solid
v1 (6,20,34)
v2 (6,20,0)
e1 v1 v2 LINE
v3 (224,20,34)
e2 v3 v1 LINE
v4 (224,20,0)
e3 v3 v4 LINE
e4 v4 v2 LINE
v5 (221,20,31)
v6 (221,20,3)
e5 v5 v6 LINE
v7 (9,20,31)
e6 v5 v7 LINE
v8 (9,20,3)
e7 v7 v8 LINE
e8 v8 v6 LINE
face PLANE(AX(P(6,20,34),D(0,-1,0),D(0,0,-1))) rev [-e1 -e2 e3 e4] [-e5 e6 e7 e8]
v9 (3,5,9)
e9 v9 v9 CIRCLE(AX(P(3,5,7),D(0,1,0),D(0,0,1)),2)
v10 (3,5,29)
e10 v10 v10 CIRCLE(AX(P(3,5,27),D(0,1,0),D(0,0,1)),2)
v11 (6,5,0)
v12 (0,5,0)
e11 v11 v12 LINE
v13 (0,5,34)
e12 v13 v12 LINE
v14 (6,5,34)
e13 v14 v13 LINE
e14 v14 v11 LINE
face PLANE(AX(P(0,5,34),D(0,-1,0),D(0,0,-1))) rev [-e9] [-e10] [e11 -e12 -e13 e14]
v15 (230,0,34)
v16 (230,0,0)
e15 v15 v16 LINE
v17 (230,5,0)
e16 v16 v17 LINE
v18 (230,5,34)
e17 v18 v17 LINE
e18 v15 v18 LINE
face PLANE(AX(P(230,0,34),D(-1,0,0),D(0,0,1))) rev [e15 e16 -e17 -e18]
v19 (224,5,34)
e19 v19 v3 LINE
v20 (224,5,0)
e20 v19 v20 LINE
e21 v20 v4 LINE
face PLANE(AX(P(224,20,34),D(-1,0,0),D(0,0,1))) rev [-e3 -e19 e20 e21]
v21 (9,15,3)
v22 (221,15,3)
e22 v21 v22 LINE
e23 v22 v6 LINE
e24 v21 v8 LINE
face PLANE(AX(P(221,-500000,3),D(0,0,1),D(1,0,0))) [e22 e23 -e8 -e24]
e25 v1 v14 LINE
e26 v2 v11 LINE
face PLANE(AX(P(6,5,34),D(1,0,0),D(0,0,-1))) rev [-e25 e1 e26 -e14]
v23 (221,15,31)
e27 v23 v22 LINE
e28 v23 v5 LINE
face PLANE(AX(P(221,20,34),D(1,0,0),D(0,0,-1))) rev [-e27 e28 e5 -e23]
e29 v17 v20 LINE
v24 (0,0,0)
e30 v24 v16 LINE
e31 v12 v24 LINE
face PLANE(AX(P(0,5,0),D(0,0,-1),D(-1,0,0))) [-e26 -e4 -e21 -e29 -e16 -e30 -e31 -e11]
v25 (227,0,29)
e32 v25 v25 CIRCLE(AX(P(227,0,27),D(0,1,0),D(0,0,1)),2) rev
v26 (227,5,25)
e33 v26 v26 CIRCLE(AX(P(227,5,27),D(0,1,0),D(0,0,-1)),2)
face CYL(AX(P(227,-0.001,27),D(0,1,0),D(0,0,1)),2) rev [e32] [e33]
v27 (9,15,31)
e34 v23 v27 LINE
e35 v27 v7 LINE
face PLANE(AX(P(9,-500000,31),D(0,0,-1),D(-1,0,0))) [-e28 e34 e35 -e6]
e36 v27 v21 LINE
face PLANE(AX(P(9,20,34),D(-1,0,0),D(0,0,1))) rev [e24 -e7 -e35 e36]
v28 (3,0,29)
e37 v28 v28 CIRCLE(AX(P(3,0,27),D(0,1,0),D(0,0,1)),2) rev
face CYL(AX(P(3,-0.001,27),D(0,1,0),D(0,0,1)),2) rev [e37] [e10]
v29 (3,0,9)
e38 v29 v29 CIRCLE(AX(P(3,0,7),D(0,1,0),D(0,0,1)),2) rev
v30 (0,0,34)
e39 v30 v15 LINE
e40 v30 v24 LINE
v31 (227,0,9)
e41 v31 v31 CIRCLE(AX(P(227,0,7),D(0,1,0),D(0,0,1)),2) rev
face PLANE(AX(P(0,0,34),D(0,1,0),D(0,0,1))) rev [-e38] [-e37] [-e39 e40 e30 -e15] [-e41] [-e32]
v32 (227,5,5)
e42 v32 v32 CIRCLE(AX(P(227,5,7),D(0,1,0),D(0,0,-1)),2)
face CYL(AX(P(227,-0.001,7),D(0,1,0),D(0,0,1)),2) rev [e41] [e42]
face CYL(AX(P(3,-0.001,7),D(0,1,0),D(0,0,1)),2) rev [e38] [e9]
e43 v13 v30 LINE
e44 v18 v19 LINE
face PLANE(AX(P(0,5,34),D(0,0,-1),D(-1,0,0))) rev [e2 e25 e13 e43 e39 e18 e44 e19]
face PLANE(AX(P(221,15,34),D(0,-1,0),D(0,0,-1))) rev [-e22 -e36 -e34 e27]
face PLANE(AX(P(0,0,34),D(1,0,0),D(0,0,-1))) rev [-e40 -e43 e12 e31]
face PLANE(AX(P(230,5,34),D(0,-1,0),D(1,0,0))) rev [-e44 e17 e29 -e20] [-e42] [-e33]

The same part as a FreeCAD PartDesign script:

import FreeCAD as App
import Part
import Sketcher

V = App.Vector

doc = App.newDocument("Part")
body = doc.addObject("PartDesign::Body", "Body")

# Sketch on XY plane
sketch1 = body.newObject("Sketcher::SketchObject", "Sketch")
sketch1.AttachmentSupport = (doc.getObject("XY_Plane"), [""])
sketch1.MapMode = "FlatFace"
sketch1.addGeometry(Part.LineSegment(V(0, 0, 0), V(230, 0, 0)), False)
sketch1.addGeometry(Part.LineSegment(V(230, 0, 0), V(230, 5, 0)), False)
sketch1.addGeometry(Part.LineSegment(V(230, 5, 0), V(224, 5, 0)), False)
sketch1.addGeometry(Part.LineSegment(V(224, 5, 0), V(224, 20, 0)), False)
sketch1.addGeometry(Part.LineSegment(V(224, 20, 0), V(221, 20, 0)), False)
sketch1.addGeometry(Part.LineSegment(V(221, 20, 0), V(221, 15, 0)), False)
sketch1.addGeometry(Part.LineSegment(V(221, 15, 0), V(9, 15, 0)), False)
sketch1.addGeometry(Part.LineSegment(V(9, 15, 0), V(9, 20, 0)), False)
sketch1.addGeometry(Part.LineSegment(V(9, 20, 0), V(6, 20, 0)), False)
sketch1.addGeometry(Part.LineSegment(V(6, 20, 0), V(6, 5, 0)), False)
sketch1.addGeometry(Part.LineSegment(V(6, 5, 0), V(0, 5, 0)), False)
sketch1.addGeometry(Part.LineSegment(V(0, 5, 0), V(0, 0, 0)), False)
sketch1.addConstraint(Sketcher.Constraint("Coincident", 0, 2, 1, 1))
sketch1.addConstraint(Sketcher.Constraint("Coincident", 1, 2, 2, 1))
sketch1.addConstraint(Sketcher.Constraint("Coincident", 2, 2, 3, 1))
sketch1.addConstraint(Sketcher.Constraint("Coincident", 3, 2, 4, 1))
sketch1.addConstraint(Sketcher.Constraint("Coincident", 4, 2, 5, 1))
sketch1.addConstraint(Sketcher.Constraint("Coincident", 5, 2, 6, 1))
sketch1.addConstraint(Sketcher.Constraint("Coincident", 6, 2, 7, 1))
sketch1.addConstraint(Sketcher.Constraint("Coincident", 7, 2, 8, 1))
sketch1.addConstraint(Sketcher.Constraint("Coincident", 8, 2, 9, 1))
sketch1.addConstraint(Sketcher.Constraint("Coincident", 9, 2, 10, 1))
sketch1.addConstraint(Sketcher.Constraint("Coincident", 10, 2, 11, 1))
sketch1.addConstraint(Sketcher.Constraint("Coincident", 11, 2, 0, 1))
sketch1.addConstraint(Sketcher.Constraint("Horizontal", 0))
sketch1.addConstraint(Sketcher.Constraint("Vertical", 1))
sketch1.addConstraint(Sketcher.Constraint("Horizontal", 2))
sketch1.addConstraint(Sketcher.Constraint("Vertical", 3))
sketch1.addConstraint(Sketcher.Constraint("Horizontal", 4))
sketch1.addConstraint(Sketcher.Constraint("Vertical", 5))
sketch1.addConstraint(Sketcher.Constraint("Horizontal", 6))
sketch1.addConstraint(Sketcher.Constraint("Vertical", 7))
sketch1.addConstraint(Sketcher.Constraint("Horizontal", 8))
sketch1.addConstraint(Sketcher.Constraint("Vertical", 9))
sketch1.addConstraint(Sketcher.Constraint("Horizontal", 10))
sketch1.addConstraint(Sketcher.Constraint("Vertical", 11))
sketch1.addConstraint(Sketcher.Constraint("Coincident", 11, 2, -1, 1))
sketch1.addConstraint(Sketcher.Constraint("Horizontal", 4, 2, 7, 2))
sketch1.addConstraint(Sketcher.Constraint("Horizontal", 2, 2, 9, 2))
sketch1.addConstraint(Sketcher.Constraint("Equal", 4, 8))
sketch1.addConstraint(Sketcher.Constraint("Equal", 2, 10))
sketch1.addConstraint(Sketcher.Constraint("Equal", 1, 5))
sketch1.addConstraint(Sketcher.Constraint("DistanceX", 0, 1, 0, 2, 230.0))
sketch1.addConstraint(Sketcher.Constraint("DistanceX", 2, 2, 2, 1, 6.0))
sketch1.addConstraint(Sketcher.Constraint("DistanceX", 4, 2, 4, 1, 3.0))
sketch1.addConstraint(Sketcher.Constraint("DistanceY", 1, 1, 1, 2, 5.0))
sketch1.addConstraint(Sketcher.Constraint("DistanceY", 3, 1, 3, 2, 15.0))
pad1 = body.newObject("PartDesign::Pad", "Pad")
pad1.Profile = sketch1
pad1.Length = 34

# Sketch on XZ plane
sketch2 = body.newObject("Sketcher::SketchObject", "Sketch001")
sketch2.AttachmentSupport = (doc.getObject("XZ_Plane"), [""])
sketch2.MapMode = "FlatFace"
sketch2.AttachmentOffset = App.Placement(V(0, 0, -20), App.Rotation())
sketch2.addGeometry(Part.LineSegment(V(9, 0, 0), V(9, 3, 0)), False)
sketch2.addGeometry(Part.LineSegment(V(9, 3, 0), V(221, 3, 0)), False)
sketch2.addGeometry(Part.LineSegment(V(221, 3, 0), V(221, 0, 0)), False)
sketch2.addGeometry(Part.LineSegment(V(221, 0, 0), V(9, 0, 0)), False)
sketch2.addConstraint(Sketcher.Constraint("Coincident", 0, 2, 1, 1))
sketch2.addConstraint(Sketcher.Constraint("Coincident", 1, 2, 2, 1))
sketch2.addConstraint(Sketcher.Constraint("Coincident", 2, 2, 3, 1))
sketch2.addConstraint(Sketcher.Constraint("Coincident", 3, 2, 0, 1))
sketch2.addConstraint(Sketcher.Constraint("Vertical", 0))
sketch2.addConstraint(Sketcher.Constraint("Horizontal", 1))
sketch2.addConstraint(Sketcher.Constraint("Vertical", 2))
sketch2.addConstraint(Sketcher.Constraint("Horizontal", 3))
sketch2.addConstraint(Sketcher.Constraint("PointOnObject", 2, 2, -1))
sketch2.addConstraint(Sketcher.Constraint("DistanceX", 1, 1, 1, 2, 212.0))
sketch2.addConstraint(Sketcher.Constraint("DistanceY", 0, 1, 0, 2, 3.0))
sketch2.addConstraint(Sketcher.Constraint("DistanceX", -1, 1, 0, 2, 9.0))
pad2 = body.newObject("PartDesign::Pad", "Pad001")
pad2.Profile = sketch2
pad2.Type = "UpToFirst"

# Sketch on XZ plane
sketch3 = body.newObject("Sketcher::SketchObject", "Sketch002")
sketch3.AttachmentSupport = (doc.getObject("XZ_Plane"), [""])
sketch3.MapMode = "FlatFace"
sketch3.AttachmentOffset = App.Placement(V(0, 0, -20), App.Rotation())
sketch3.addGeometry(Part.LineSegment(V(9, 31, 0), V(9, 34, 0)), False)
sketch3.addGeometry(Part.LineSegment(V(9, 34, 0), V(221, 34, 0)), False)
sketch3.addGeometry(Part.LineSegment(V(221, 34, 0), V(221, 31, 0)), False)
sketch3.addGeometry(Part.LineSegment(V(221, 31, 0), V(9, 31, 0)), False)
sketch3.addConstraint(Sketcher.Constraint("Coincident", 0, 2, 1, 1))
sketch3.addConstraint(Sketcher.Constraint("Coincident", 1, 2, 2, 1))
sketch3.addConstraint(Sketcher.Constraint("Coincident", 2, 2, 3, 1))
sketch3.addConstraint(Sketcher.Constraint("Coincident", 3, 2, 0, 1))
sketch3.addConstraint(Sketcher.Constraint("Vertical", 0))
sketch3.addConstraint(Sketcher.Constraint("Horizontal", 1))
sketch3.addConstraint(Sketcher.Constraint("Vertical", 2))
sketch3.addConstraint(Sketcher.Constraint("Horizontal", 3))
sketch3.addConstraint(Sketcher.Constraint("DistanceX", 1, 1, 1, 2, 212.0))
sketch3.addConstraint(Sketcher.Constraint("DistanceY", 0, 1, 0, 2, 3.0))
sketch3.addConstraint(Sketcher.Constraint("DistanceX", -1, 1, 0, 2, 9.0))
sketch3.addConstraint(Sketcher.Constraint("DistanceY", -1, 1, 0, 2, 34.0))
pad3 = body.newObject("PartDesign::Pad", "Pad002")
pad3.Profile = sketch3
pad3.Type = "UpToFirst"

# Sketch on XZ plane
sketch4 = body.newObject("Sketcher::SketchObject", "Sketch003")
sketch4.AttachmentSupport = (doc.getObject("XZ_Plane"), [""])
sketch4.MapMode = "FlatFace"
sketch4.AttachmentOffset = App.Placement(V(0, 0, -5), App.Rotation())
sketch4.addGeometry(Part.Circle(V(3, 7, 0), V(0, 0, 1), 2), False)
sketch4.addConstraint(Sketcher.Constraint("Diameter", 0, 4.0))
sketch4.addConstraint(Sketcher.Constraint("DistanceX", -1, 1, 0, 3, 3.0))
sketch4.addConstraint(Sketcher.Constraint("DistanceY", -1, 1, 0, 3, 7.0))
pocket1 = body.newObject("PartDesign::Pocket", "Pocket")
pocket1.Profile = sketch4
pocket1.Type = "UpToFirst"
pocket1.Reversed = True

# Sketch on XZ plane
sketch5 = body.newObject("Sketcher::SketchObject", "Sketch004")
sketch5.AttachmentSupport = (doc.getObject("XZ_Plane"), [""])
sketch5.MapMode = "FlatFace"
sketch5.AttachmentOffset = App.Placement(V(0, 0, -5), App.Rotation())
sketch5.addGeometry(Part.Circle(V(3, 27, 0), V(0, 0, 1), 2), False)
sketch5.addConstraint(Sketcher.Constraint("Diameter", 0, 4.0))
sketch5.addConstraint(Sketcher.Constraint("DistanceX", -1, 1, 0, 3, 3.0))
sketch5.addConstraint(Sketcher.Constraint("DistanceY", -1, 1, 0, 3, 27.0))
pocket2 = body.newObject("PartDesign::Pocket", "Pocket001")
pocket2.Profile = sketch5
pocket2.Type = "UpToFirst"
pocket2.Reversed = True

# Sketch on XZ plane
sketch6 = body.newObject("Sketcher::SketchObject", "Sketch005")
sketch6.AttachmentSupport = (doc.getObject("XZ_Plane"), [""])
sketch6.MapMode = "FlatFace"
sketch6.AttachmentOffset = App.Placement(V(0, 0, -5), App.Rotation())
sketch6.addGeometry(Part.Circle(V(227, 27, 0), V(0, 0, 1), 2), False)
sketch6.addConstraint(Sketcher.Constraint("Diameter", 0, 4.0))
sketch6.addConstraint(Sketcher.Constraint("DistanceX", -1, 1, 0, 3, 227.0))
sketch6.addConstraint(Sketcher.Constraint("DistanceY", -1, 1, 0, 3, 27.0))
pocket3 = body.newObject("PartDesign::Pocket", "Pocket002")
pocket3.Profile = sketch6
pocket3.Type = "UpToFirst"
pocket3.Reversed = True

# Sketch on XZ plane
sketch7 = body.newObject("Sketcher::SketchObject", "Sketch006")
sketch7.AttachmentSupport = (doc.getObject("XZ_Plane"), [""])
sketch7.MapMode = "FlatFace"
sketch7.AttachmentOffset = App.Placement(V(0, 0, -5), App.Rotation())
sketch7.addGeometry(Part.Circle(V(227, 7, 0), V(0, 0, 1), 2), False)
sketch7.addConstraint(Sketcher.Constraint("Diameter", 0, 4.0))
sketch7.addConstraint(Sketcher.Constraint("DistanceX", -1, 1, 0, 3, 227.0))
sketch7.addConstraint(Sketcher.Constraint("DistanceY", -1, 1, 0, 3, 7.0))
pocket4 = body.newObject("PartDesign::Pocket", "Pocket003")
pocket4.Profile = sketch7
pocket4.Type = "UpToFirst"
pocket4.Reversed = True

doc.recompute()
